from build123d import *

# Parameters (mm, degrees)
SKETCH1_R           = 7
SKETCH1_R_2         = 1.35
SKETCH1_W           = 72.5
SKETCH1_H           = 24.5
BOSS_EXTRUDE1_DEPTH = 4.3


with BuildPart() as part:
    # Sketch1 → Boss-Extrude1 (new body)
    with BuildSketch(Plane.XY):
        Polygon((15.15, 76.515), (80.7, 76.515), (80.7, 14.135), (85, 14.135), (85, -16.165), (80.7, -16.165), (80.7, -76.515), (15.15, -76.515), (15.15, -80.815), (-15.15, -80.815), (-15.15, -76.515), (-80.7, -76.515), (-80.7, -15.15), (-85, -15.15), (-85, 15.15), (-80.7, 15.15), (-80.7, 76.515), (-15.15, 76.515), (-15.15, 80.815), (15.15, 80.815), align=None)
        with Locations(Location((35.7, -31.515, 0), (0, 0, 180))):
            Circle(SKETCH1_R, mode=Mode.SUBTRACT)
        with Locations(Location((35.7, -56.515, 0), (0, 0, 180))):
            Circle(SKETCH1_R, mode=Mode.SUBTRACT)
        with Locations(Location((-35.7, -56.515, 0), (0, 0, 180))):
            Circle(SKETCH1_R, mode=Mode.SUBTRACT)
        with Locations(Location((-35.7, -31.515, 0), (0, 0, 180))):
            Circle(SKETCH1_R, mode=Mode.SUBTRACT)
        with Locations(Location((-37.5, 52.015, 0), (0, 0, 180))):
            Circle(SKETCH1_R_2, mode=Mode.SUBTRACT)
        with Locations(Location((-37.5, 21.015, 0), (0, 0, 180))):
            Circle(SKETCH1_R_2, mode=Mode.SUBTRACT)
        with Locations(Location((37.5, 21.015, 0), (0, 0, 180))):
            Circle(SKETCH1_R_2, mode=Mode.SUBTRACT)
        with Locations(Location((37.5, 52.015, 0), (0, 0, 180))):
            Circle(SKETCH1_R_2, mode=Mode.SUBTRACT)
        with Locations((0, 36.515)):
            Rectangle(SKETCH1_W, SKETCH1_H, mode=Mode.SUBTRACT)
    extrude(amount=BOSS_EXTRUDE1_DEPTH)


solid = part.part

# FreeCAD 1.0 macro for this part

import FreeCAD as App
import Part
import Sketcher
from FreeCAD import Vector


def add_polygon(sketch, points):
    """Adds a closed chain of lines whose ends are joined by coincident constraints."""
    first, n = sketch.GeometryCount, len(points)
    for a, b in zip(points, points[1:] + points[:1]):
        sketch.addGeometry(Part.LineSegment(App.Vector(*a, 0), App.Vector(*b, 0)), False)
    for i in range(n):
        sketch.addConstraint(Sketcher.Constraint("Coincident", first + i, 2, first + (i + 1) % n, 1))

doc = App.newDocument("Part")
params = doc.addObject("Spreadsheet::Sheet", "Params")
for row, (alias, value) in enumerate([
    ("sketch1_diameter", "14 mm"),
    ("sketch1_diameter2", "2.7 mm"),
    ("sketch1_width", "30.3 mm"),
    ("sketch1_width2", "4.3 mm"),
    ("sketch1_width3", "72.5 mm"),
    ("pad1_length", "4.3 mm"),
], start=1):
    params.set(f"A{row}", alias)
    params.set(f"B{row}", "=" + value)
    params.setAlias(f"B{row}", alias)

body = doc.addObject("PartDesign::Body", "Body")

# Sketch on XY plane
sketch1 = body.newObject("Sketcher::SketchObject", "Sketch")
sketch1.AttachmentSupport = (doc.getObject("XY_Plane"), [""])
sketch1.MapMode = "FlatFace"
add_polygon(sketch1, [(80.7, 76.5), (15.2, 76.5), (15.2, 80.8), (-15.2, 80.8), (-15.2, 76.5), (-80.7, 76.5), (-80.7, 15.2), (-85, 15.2), (-85, -15.2), (-80.7, -15.2), (-80.7, -76.5), (-15.2, -76.5), (-15.2, -80.8), (15.2, -80.8), (15.2, -76.5), (80.7, -76.5), (80.7, -16.2), (85, -16.2), (85, 14.1), (80.7, 14.1)])  # lines 0-19
sketch1.addGeometry(Part.Circle(Vector(35.7, -56.5, 0), Vector(0, 0, 1), 7), False)  # 20
sketch1.addGeometry(Part.Circle(Vector(35.7, -31.5, 0), Vector(0, 0, 1), 7), False)  # 21
sketch1.addGeometry(Part.Circle(Vector(-35.7, -56.5, 0), Vector(0, 0, 1), 7), False)  # 22
sketch1.addGeometry(Part.Circle(Vector(-35.7, -31.5, 0), Vector(0, 0, 1), 7), False)  # 23
sketch1.addGeometry(Part.Circle(Vector(37.5, 21, 0), Vector(0, 0, 1), 1.4), False)  # 24
sketch1.addGeometry(Part.Circle(Vector(37.5, 52, 0), Vector(0, 0, 1), 1.4), False)  # 25
sketch1.addGeometry(Part.Circle(Vector(-37.5, 21, 0), Vector(0, 0, 1), 1.4), False)  # 26
add_polygon(sketch1, [(-36.2, 24.3), (-36.2, 48.8), (36.2, 48.8), (36.2, 24.3)])  # lines 27-30
sketch1.addGeometry(Part.Circle(Vector(-37.5, 52, 0), Vector(0, 0, 1), 1.4), False)  # 31
sketch1.addConstraint(Sketcher.Constraint("Horizontal", 0))
sketch1.addConstraint(Sketcher.Constraint("Vertical", 1))
sketch1.addConstraint(Sketcher.Constraint("Horizontal", 2))
sketch1.addConstraint(Sketcher.Constraint("Vertical", 3))
sketch1.addConstraint(Sketcher.Constraint("Horizontal", 4))
sketch1.addConstraint(Sketcher.Constraint("Vertical", 5))
sketch1.addConstraint(Sketcher.Constraint("Horizontal", 6))
sketch1.addConstraint(Sketcher.Constraint("Vertical", 7))
sketch1.addConstraint(Sketcher.Constraint("Horizontal", 8))
sketch1.addConstraint(Sketcher.Constraint("Vertical", 9))
sketch1.addConstraint(Sketcher.Constraint("Horizontal", 10))
sketch1.addConstraint(Sketcher.Constraint("Vertical", 11))
sketch1.addConstraint(Sketcher.Constraint("Horizontal", 12))
sketch1.addConstraint(Sketcher.Constraint("Vertical", 13))
sketch1.addConstraint(Sketcher.Constraint("Horizontal", 14))
sketch1.addConstraint(Sketcher.Constraint("Vertical", 15))
sketch1.addConstraint(Sketcher.Constraint("Horizontal", 16))
sketch1.addConstraint(Sketcher.Constraint("Vertical", 17))
sketch1.addConstraint(Sketcher.Constraint("Horizontal", 18))
sketch1.addConstraint(Sketcher.Constraint("Vertical", 19))
sketch1.addConstraint(Sketcher.Constraint("Vertical", 27))
sketch1.addConstraint(Sketcher.Constraint("Horizontal", 28))
sketch1.addConstraint(Sketcher.Constraint("Vertical", 29))
sketch1.addConstraint(Sketcher.Constraint("Horizontal", 30))
sketch1.addConstraint(Sketcher.Constraint("Equal", 20, 21))
sketch1.addConstraint(Sketcher.Constraint("Equal", 21, 22))
sketch1.addConstraint(Sketcher.Constraint("Equal", 22, 23))
sketch1.addConstraint(Sketcher.Constraint("Equal", 24, 25))
sketch1.addConstraint(Sketcher.Constraint("Equal", 25, 26))
sketch1.addConstraint(Sketcher.Constraint("Equal", 26, 31))
sketch1.addConstraint(Sketcher.Constraint("Symmetric", 0, 2, 10, 2, -1, 1))
sketch1.addConstraint(Sketcher.Constraint("Symmetric", 2, 2, 12, 2, -1, 1))
sketch1.addConstraint(Sketcher.Constraint("Symmetric", 4, 2, 14, 2, -1, 1))
sketch1.addConstraint(Sketcher.Constraint("Symmetric", 20, 3, 22, 3, -2))
sketch1.addConstraint(Sketcher.Constraint("Symmetric", 21, 3, 23, 3, -2))
sketch1.addConstraint(Sketcher.Constraint("Symmetric", 24, 3, 26, 3, -2))
sketch1.addConstraint(Sketcher.Constraint("Symmetric", 25, 3, 31, 3, -2))
sketch1.addConstraint(Sketcher.Constraint("Symmetric", 0, 2, 3, 2, -2))
sketch1.addConstraint(Sketcher.Constraint("Symmetric", 5, 2, 8, 2, -1))
sketch1.addConstraint(Sketcher.Constraint("Vertical", 20, 3, 21, 3))
sketch1.addConstraint(Sketcher.Constraint("Vertical", 24, 3, 25, 3))
sketch1.addConstraint(Sketcher.Constraint("Vertical", 15, 2, 18, 2))
sketch1.addConstraint(Sketcher.Constraint("Equal", 8, 16))
sketch1.addConstraint(Sketcher.Constraint("Equal", 18, 1))
sketch1.addConstraint(Sketcher.Constraint("Equal", 12, 7))
sketch1.addConstraint(Sketcher.Constraint("Equal", 7, 17))
sketch1.addConstraint(Sketcher.Constraint("Diameter", 20, 14.0))
sketch1.addConstraint(Sketcher.Constraint("Diameter", 24, 2.7))
sketch1.addConstraint(Sketcher.Constraint("DistanceX", 2, 2, 2, 1, 30.3))
sketch1.addConstraint(Sketcher.Constraint("DistanceX", 6, 2, 6, 1, 4.3))
sketch1.addConstraint(Sketcher.Constraint("DistanceX", 28, 1, 28, 2, 72.5))
sketch1.addConstraint(Sketcher.Constraint("DistanceY", 27, 1, 27, 2, 24.5))
sketch1.addConstraint(Sketcher.Constraint("DistanceX", 6, 2, -1, 1, 85.0))
sketch1.addConstraint(Sketcher.Constraint("DistanceY", 20, 3, 21, 3, 25.0))
sketch1.addConstraint(Sketcher.Constraint("DistanceY", 24, 3, 25, 3, 31.0))
sketch1.addConstraint(Sketcher.Constraint("DistanceX", 26, 3, 24, 3, 75.0))
sketch1.addConstraint(Sketcher.Constraint("DistanceX", 5, 2, 23, 3, 45.0))
sketch1.addConstraint(Sketcher.Constraint("DistanceY", 9, 2, 22, 3, 20.0))
sketch1.addConstraint(Sketcher.Constraint("DistanceY", 15, 1, 15, 2, 60.35))
sketch1.addConstraint(Sketcher.Constraint("DistanceY", 19, 1, 19, 2, 62.38))
sketch1.addConstraint(Sketcher.Constraint("DistanceY", 25, 3, 0, 2, 24.5))
sketch1.addConstraint(Sketcher.Constraint("DistanceX", 27, 2, 3, 2, 21.1))
sketch1.addConstraint(Sketcher.Constraint("DistanceY", 27, 2, 31, 3, 3.25))
sketch1.setExpression("Constraints[70]", "Params.sketch1_diameter")
sketch1.setExpression("Constraints[71]", "Params.sketch1_diameter2")
sketch1.setExpression("Constraints[72]", "Params.sketch1_width")
sketch1.setExpression("Constraints[73]", "Params.sketch1_width2")
sketch1.setExpression("Constraints[74]", "Params.sketch1_width3")
pad1 = body.newObject("PartDesign::Pad", "Pad")
pad1.Profile = sketch1
pad1.setExpression("Length", "Params.pad1_length")

doc.recompute()
